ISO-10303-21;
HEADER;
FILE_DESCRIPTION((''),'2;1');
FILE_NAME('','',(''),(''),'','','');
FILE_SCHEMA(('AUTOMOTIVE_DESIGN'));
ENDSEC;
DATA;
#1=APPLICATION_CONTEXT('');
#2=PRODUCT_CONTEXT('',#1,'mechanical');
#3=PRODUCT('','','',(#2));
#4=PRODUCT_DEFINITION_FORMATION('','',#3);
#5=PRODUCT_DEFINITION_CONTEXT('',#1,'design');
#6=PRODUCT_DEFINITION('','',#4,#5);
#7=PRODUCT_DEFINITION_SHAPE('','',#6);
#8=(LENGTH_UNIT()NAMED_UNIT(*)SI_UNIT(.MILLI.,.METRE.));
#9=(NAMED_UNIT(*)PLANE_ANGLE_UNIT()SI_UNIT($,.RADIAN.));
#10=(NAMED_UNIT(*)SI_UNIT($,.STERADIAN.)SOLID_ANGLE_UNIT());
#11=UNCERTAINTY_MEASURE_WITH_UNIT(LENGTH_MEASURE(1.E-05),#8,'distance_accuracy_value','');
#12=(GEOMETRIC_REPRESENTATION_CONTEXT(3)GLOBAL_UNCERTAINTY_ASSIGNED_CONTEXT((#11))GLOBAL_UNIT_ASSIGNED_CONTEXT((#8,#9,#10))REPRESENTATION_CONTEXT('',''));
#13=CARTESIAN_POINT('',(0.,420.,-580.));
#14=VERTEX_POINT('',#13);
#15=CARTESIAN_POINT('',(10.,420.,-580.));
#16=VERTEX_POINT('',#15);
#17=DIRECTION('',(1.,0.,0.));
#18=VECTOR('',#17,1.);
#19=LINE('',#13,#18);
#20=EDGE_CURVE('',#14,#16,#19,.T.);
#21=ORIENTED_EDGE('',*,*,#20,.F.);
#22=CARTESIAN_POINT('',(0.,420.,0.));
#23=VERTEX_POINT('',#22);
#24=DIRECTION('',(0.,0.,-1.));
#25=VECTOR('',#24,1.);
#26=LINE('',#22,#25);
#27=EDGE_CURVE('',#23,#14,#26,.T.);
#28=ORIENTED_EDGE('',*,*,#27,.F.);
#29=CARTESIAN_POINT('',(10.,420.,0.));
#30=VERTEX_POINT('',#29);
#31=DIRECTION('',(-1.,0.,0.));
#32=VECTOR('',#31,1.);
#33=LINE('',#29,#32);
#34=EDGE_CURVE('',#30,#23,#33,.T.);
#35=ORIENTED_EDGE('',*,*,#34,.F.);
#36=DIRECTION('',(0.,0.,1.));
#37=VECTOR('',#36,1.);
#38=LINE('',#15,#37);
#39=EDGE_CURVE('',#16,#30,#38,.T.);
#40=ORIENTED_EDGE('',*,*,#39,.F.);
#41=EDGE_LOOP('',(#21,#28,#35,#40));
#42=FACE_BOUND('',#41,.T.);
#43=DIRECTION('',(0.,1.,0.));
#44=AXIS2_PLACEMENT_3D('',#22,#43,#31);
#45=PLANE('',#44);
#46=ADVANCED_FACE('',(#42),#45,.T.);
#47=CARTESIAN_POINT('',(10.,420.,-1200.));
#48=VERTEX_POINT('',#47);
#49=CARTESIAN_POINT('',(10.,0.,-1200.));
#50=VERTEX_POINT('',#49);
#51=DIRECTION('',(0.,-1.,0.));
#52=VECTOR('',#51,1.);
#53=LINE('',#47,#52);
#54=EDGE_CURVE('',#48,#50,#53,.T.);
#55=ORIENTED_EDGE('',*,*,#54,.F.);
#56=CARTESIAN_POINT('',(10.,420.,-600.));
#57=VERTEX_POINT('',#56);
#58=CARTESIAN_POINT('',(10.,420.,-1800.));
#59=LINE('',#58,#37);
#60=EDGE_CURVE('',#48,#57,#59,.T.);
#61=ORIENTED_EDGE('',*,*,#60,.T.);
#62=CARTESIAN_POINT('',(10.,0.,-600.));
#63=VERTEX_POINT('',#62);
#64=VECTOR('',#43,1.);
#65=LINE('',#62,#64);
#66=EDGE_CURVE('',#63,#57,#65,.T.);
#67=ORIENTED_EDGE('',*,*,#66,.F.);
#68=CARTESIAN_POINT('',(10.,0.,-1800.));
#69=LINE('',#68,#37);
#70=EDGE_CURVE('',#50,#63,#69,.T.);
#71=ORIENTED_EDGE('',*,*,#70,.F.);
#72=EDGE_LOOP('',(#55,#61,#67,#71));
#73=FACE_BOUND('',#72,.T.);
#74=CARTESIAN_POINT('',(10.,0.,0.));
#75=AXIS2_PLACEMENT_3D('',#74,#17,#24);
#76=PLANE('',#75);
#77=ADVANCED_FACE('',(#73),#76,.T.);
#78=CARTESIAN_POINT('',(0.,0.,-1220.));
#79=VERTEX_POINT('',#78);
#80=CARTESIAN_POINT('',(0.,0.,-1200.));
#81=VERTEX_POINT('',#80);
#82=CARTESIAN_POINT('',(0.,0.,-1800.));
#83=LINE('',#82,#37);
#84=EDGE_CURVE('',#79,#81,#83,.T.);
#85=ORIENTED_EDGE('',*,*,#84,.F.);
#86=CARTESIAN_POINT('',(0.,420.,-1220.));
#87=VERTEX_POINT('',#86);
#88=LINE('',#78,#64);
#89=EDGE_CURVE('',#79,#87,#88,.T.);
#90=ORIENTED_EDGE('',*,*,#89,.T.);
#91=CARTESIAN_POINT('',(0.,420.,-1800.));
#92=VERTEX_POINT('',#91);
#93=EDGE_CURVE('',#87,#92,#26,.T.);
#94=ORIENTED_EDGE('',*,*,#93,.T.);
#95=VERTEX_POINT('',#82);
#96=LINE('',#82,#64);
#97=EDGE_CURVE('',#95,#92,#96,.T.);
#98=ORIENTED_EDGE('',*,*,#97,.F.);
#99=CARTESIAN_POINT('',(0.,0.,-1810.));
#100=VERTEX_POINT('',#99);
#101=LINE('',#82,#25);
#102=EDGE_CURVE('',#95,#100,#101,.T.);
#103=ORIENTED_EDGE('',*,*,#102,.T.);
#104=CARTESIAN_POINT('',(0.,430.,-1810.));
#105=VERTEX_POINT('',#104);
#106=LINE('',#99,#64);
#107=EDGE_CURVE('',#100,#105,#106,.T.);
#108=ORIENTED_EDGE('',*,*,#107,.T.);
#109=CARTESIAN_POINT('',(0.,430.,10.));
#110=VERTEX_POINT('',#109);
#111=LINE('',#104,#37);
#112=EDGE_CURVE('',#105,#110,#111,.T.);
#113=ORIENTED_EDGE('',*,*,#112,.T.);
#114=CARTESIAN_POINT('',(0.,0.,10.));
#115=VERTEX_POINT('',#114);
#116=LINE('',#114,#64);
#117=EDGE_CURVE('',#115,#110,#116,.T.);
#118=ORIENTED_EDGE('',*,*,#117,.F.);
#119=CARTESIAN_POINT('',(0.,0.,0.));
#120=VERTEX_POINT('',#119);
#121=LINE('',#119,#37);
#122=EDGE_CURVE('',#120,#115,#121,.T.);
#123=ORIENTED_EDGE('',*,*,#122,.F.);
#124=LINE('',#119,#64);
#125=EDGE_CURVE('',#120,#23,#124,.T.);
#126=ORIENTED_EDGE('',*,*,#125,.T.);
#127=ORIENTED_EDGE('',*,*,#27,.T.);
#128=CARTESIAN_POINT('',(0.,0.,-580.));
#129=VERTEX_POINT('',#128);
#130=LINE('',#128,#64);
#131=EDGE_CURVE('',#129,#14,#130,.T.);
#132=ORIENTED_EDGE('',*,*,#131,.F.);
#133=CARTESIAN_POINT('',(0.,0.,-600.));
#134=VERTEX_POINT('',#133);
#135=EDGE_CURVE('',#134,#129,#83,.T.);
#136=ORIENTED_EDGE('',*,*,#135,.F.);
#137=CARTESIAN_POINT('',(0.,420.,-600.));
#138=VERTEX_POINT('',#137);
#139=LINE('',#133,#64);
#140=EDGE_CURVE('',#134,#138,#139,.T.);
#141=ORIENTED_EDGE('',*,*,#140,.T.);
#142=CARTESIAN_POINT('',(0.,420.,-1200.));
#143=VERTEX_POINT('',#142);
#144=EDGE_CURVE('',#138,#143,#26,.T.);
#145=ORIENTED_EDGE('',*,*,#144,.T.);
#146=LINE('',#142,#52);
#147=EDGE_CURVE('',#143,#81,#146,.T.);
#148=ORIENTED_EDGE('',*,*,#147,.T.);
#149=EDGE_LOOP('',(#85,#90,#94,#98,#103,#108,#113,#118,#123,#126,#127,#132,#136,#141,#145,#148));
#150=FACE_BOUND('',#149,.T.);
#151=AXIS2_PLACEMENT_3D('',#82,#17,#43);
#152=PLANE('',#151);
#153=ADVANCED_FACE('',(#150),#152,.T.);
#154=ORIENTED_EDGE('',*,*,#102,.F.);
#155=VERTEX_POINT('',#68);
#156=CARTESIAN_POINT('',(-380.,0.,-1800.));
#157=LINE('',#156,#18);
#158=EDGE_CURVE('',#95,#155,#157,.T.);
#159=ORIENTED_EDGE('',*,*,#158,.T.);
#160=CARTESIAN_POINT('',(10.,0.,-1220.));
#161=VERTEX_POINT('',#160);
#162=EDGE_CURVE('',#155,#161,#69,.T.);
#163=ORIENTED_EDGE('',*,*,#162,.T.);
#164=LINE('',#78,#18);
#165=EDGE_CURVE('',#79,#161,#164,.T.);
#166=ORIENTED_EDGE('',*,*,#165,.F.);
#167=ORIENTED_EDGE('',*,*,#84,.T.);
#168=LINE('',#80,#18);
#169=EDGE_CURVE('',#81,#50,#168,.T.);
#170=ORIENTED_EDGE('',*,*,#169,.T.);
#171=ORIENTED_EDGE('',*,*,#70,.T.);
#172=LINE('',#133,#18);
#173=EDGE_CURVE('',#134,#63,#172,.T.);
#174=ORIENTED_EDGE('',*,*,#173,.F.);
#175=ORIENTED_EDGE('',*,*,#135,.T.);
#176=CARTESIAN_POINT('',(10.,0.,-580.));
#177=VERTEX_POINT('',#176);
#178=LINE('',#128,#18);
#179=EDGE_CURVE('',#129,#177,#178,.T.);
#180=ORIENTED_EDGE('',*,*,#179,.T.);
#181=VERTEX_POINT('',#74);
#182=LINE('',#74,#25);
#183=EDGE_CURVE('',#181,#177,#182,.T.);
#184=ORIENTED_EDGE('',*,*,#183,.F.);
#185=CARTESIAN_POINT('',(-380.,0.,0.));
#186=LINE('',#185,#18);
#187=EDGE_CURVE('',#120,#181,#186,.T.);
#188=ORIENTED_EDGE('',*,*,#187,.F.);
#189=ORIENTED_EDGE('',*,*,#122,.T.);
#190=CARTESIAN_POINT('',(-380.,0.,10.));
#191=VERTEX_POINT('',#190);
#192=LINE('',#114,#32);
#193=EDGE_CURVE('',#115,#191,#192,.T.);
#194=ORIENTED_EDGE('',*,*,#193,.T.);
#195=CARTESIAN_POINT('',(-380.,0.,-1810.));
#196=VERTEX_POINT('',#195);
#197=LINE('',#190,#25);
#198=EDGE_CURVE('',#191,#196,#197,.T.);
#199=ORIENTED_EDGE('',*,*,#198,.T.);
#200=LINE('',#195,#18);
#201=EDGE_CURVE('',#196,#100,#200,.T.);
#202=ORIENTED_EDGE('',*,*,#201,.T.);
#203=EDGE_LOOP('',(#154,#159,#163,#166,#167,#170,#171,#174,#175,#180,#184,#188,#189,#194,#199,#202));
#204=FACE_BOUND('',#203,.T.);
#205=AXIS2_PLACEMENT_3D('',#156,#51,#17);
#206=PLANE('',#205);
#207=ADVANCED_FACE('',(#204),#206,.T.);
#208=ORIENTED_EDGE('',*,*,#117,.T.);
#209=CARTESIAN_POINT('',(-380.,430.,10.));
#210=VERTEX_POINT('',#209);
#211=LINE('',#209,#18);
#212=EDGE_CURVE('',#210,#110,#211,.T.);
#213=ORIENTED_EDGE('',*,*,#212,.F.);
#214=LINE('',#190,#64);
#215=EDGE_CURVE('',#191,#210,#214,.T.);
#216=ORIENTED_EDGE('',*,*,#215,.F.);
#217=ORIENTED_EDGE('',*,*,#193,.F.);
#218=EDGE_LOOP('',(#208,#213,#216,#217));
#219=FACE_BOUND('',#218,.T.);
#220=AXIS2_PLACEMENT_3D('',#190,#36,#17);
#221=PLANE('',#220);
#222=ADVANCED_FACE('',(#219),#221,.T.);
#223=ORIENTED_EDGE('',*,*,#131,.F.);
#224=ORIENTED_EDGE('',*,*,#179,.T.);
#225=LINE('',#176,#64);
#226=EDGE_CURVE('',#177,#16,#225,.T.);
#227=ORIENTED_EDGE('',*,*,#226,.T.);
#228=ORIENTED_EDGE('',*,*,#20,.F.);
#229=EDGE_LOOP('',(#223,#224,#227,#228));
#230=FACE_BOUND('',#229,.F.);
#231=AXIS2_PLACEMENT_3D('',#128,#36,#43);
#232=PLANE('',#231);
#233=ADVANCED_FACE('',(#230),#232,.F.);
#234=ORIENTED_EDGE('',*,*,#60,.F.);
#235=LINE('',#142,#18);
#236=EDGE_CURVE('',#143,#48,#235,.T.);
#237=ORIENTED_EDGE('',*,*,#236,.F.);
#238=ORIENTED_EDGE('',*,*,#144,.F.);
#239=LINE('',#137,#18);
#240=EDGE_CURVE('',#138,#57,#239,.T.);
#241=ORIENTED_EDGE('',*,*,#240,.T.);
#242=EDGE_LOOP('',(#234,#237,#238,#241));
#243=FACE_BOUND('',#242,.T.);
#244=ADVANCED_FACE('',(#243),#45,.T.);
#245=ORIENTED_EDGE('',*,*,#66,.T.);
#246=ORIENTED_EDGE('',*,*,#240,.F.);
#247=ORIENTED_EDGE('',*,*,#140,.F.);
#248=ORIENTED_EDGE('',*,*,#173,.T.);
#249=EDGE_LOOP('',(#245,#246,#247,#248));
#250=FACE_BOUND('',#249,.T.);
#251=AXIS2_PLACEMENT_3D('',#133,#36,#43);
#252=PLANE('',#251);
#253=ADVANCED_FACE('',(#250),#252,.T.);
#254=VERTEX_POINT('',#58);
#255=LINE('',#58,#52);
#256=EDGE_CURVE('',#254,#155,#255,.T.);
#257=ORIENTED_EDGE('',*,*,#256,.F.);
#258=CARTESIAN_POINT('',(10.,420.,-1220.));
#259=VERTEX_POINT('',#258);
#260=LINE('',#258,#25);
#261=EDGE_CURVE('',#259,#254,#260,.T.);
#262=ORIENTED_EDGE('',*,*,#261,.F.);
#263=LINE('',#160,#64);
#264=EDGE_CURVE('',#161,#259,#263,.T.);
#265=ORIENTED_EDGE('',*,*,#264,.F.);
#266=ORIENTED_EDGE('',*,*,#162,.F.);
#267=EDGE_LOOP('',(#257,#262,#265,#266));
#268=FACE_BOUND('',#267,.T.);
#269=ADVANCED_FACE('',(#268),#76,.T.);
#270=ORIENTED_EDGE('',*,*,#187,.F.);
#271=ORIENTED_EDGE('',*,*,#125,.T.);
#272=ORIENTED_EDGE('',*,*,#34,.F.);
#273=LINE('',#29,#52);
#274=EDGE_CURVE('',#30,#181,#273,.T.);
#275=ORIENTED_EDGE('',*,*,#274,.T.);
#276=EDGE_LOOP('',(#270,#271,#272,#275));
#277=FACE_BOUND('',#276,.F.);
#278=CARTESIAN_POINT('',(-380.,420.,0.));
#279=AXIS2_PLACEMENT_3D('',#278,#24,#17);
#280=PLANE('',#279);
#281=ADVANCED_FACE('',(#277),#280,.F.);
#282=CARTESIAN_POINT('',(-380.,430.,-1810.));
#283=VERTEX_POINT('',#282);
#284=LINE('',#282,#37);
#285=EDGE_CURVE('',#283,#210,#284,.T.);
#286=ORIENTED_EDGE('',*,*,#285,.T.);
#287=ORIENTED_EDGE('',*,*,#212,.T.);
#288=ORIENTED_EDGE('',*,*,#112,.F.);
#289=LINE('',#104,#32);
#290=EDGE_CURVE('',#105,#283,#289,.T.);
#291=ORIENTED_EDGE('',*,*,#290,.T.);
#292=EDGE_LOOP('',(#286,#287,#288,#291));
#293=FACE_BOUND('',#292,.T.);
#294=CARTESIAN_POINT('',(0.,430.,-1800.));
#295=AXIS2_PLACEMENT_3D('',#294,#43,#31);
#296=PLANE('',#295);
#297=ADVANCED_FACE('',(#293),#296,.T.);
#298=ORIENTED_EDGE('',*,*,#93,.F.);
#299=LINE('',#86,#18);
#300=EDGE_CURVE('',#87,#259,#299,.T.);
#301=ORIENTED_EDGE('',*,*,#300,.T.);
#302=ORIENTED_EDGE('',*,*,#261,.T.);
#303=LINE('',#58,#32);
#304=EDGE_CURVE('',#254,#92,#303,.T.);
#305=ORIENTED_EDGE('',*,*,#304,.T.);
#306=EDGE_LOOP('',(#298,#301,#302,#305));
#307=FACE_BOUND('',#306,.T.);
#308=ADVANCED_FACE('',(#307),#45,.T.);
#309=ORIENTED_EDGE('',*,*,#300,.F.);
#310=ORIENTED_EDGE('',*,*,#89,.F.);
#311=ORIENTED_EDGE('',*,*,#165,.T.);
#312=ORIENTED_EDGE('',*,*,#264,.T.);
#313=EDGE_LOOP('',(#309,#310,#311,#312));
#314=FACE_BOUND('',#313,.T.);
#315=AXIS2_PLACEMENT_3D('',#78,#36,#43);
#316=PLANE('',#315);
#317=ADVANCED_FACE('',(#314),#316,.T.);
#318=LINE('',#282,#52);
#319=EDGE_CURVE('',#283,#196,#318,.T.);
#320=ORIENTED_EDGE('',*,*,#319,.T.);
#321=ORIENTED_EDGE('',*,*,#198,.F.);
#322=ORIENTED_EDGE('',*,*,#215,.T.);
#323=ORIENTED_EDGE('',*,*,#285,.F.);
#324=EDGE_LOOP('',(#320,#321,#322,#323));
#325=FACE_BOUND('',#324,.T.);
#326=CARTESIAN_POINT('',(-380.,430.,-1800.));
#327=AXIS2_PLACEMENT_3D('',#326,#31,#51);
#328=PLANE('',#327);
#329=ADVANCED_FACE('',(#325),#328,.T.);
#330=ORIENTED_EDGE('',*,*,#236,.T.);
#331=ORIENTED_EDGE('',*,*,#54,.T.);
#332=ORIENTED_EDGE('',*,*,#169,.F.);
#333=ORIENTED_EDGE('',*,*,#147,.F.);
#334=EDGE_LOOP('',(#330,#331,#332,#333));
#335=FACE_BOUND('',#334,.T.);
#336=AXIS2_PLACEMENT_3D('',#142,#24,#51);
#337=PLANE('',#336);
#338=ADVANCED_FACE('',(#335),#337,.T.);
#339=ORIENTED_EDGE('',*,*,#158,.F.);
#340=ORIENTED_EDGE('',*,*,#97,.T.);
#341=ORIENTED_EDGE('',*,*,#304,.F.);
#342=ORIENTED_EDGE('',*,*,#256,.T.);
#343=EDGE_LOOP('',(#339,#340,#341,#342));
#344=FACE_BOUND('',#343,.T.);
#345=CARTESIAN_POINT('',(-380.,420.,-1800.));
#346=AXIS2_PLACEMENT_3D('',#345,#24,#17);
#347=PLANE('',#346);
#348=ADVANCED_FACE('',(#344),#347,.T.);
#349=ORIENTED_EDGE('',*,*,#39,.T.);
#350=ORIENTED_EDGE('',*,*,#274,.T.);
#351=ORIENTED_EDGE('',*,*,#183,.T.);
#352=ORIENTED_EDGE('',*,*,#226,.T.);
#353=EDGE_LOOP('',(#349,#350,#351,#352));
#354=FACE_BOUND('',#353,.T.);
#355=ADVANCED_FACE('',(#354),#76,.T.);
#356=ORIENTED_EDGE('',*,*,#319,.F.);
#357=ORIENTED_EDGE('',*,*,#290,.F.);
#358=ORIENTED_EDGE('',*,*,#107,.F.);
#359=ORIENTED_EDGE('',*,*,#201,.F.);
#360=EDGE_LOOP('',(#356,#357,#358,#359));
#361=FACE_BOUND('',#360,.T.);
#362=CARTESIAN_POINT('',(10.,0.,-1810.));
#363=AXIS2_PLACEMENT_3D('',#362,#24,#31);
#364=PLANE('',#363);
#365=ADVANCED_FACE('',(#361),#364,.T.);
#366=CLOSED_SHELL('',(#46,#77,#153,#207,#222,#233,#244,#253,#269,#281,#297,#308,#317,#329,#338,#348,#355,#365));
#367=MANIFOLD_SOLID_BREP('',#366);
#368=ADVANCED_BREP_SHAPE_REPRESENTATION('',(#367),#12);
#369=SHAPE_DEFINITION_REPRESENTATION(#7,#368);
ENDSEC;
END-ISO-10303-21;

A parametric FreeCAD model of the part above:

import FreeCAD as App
import Part
import Sketcher
from FreeCAD import Vector
Q = App.Units.Quantity

doc = App.newDocument("Part")
body = doc.addObject("PartDesign::Body", "Body")

sketch1 = doc.addObject("Sketcher::SketchObject", "Sketch")
body.addObject(sketch1)
sketch1.AttachmentSupport = (doc.XZ_Plane, [""])
sketch1.MapMode = "FlatFace"
sketch1.addGeometry([
    Part.LineSegment(Vector(-380, 0, 0), Vector(0, 0, 0)),
    Part.LineSegment(Vector(0, 0, 0), Vector(0, -1800, 0)),
    Part.LineSegment(Vector(0, -1800, 0), Vector(-380, -1800, 0)),
    Part.LineSegment(Vector(-380, -1800, 0), Vector(-380, 0, 0)),
], False)
sketch1.addConstraint([
    Sketcher.Constraint("Coincident", 0, 2, 1, 1),
    Sketcher.Constraint("Coincident", 1, 2, 2, 1),
    Sketcher.Constraint("Coincident", 2, 2, 3, 1),
    Sketcher.Constraint("Coincident", 3, 2, 0, 1),
    Sketcher.Constraint("Horizontal", 0),
    Sketcher.Constraint("Vertical", 1),
    Sketcher.Constraint("Horizontal", 2),
    Sketcher.Constraint("Vertical", 3),
    Sketcher.Constraint("Coincident", 0, 2, -1, 1),
    Sketcher.Constraint("DistanceX", 0, 1, 0, 2, Q("380 mm")),
    Sketcher.Constraint("DistanceY", 1, 2, 1, 1, Q("1800 mm")),
])
pad1 = doc.addObject("PartDesign::Pad", "Pad")
body.addObject(pad1)
pad1.Profile = sketch1
pad1.Length = 420
pad1.Reversed = True

sketch2 = doc.addObject("Sketcher::SketchObject", "Sketch001")
body.addObject(sketch2)
sketch2.AttachmentSupport = (doc.YZ_Plane, [""])
sketch2.MapMode = "FlatFace"
sketch2.addGeometry([
    Part.LineSegment(Vector(420, 0, 0), Vector(0, 0, 0)),
    Part.LineSegment(Vector(0, 0, 0), Vector(0, -580, 0)),
    Part.LineSegment(Vector(0, -580, 0), Vector(420, -580, 0)),
    Part.LineSegment(Vector(420, -580, 0), Vector(420, 0, 0)),
    Part.LineSegment(Vector(420, -600, 0), Vector(0, -600, 0)),
    Part.LineSegment(Vector(0, -600, 0), Vector(0, -1200, 0)),
    Part.LineSegment(Vector(0, -1200, 0), Vector(420, -1200, 0)),
    Part.LineSegment(Vector(420, -1200, 0), Vector(420, -600, 0)),
    Part.LineSegment(Vector(420, -1220, 0), Vector(0, -1220, 0)),
    Part.LineSegment(Vector(0, -1220, 0), Vector(0, -1800, 0)),
    Part.LineSegment(Vector(0, -1800, 0), Vector(420, -1800, 0)),
    Part.LineSegment(Vector(420, -1800, 0), Vector(420, -1220, 0)),
], False)
sketch2.addConstraint([
    Sketcher.Constraint("Coincident", 0, 2, 1, 1),
    Sketcher.Constraint("Coincident", 1, 2, 2, 1),
    Sketcher.Constraint("Coincident", 2, 2, 3, 1),
    Sketcher.Constraint("Coincident", 3, 2, 0, 1),
    Sketcher.Constraint("Coincident", 4, 2, 5, 1),
    Sketcher.Constraint("Coincident", 5, 2, 6, 1),
    Sketcher.Constraint("Coincident", 6, 2, 7, 1),
    Sketcher.Constraint("Coincident", 7, 2, 4, 1),
    Sketcher.Constraint("Coincident", 8, 2, 9, 1),
    Sketcher.Constraint("Coincident", 9, 2, 10, 1),
    Sketcher.Constraint("Coincident", 10, 2, 11, 1),
    Sketcher.Constraint("Coincident", 11, 2, 8, 1),
    Sketcher.Constraint("Horizontal", 0),
    Sketcher.Constraint("Vertical", 1),
    Sketcher.Constraint("Horizontal", 2),
    Sketcher.Constraint("Vertical", 3),
    Sketcher.Constraint("Horizontal", 4),
    Sketcher.Constraint("Vertical", 5),
    Sketcher.Constraint("Horizontal", 6),
    Sketcher.Constraint("Vertical", 7),
    Sketcher.Constraint("Horizontal", 8),
    Sketcher.Constraint("Vertical", 9),
    Sketcher.Constraint("Horizontal", 10),
    Sketcher.Constraint("Vertical", 11),
    Sketcher.Constraint("Coincident", 0, 2, -1, 1),
    Sketcher.Constraint("PointOnObject", 4, 2, -2),
    Sketcher.Constraint("PointOnObject", 8, 2, -2),
    Sketcher.Constraint("Vertical", 3, 2, 6, 2),
    Sketcher.Constraint("Vertical", 7, 2, 10, 2),
    Sketcher.Constraint("Equal", 3, 9),
    Sketcher.Constraint("DistanceY", 1, 2, 1, 1, Q("580 mm")),
    Sketcher.Constraint("DistanceY", 5, 2, 5, 1, Q("600 mm")),
    Sketcher.Constraint("DistanceY", 4, 2, -1, 1, Q("600 mm")),
    Sketcher.Constraint("DistanceY", 9, 2, 5, 2, Q("600 mm")),
    Sketcher.Constraint("DistanceX", 0, 2, 0, 1, Q("420 mm")),
])
pad2 = doc.addObject("PartDesign::Pad", "Pad001")
body.addObject(pad2)
pad2.Profile = sketch2
pad2.Length = 10

sketch3 = doc.addObject("Sketcher::SketchObject", "Sketch002")
body.addObject(sketch3)
sketch3.AttachmentSupport = (doc.XZ_Plane, [""])
sketch3.MapMode = "FlatFace"
sketch3.AttachmentOffset = App.Placement(Vector(0, 0, -420), App.Rotation())
sketch3.addGeometry([
    Part.LineSegment(Vector(0, -1800, 0), Vector(-380, -1800, 0)),
    Part.LineSegment(Vector(-380, -1800, 0), Vector(-380, 0, 0)),
    Part.LineSegment(Vector(-380, 0, 0), Vector(0, 0, 0)),
    Part.LineSegment(Vector(0, 0, 0), Vector(0, -1800, 0)),
], False)
sketch3.addConstraint([
    Sketcher.Constraint("Coincident", 0, 2, 1, 1),
    Sketcher.Constraint("Coincident", 1, 2, 2, 1),
    Sketcher.Constraint("Coincident", 2, 2, 3, 1),
    Sketcher.Constraint("Coincident", 3, 2, 0, 1),
    Sketcher.Constraint("Horizontal", 0),
    Sketcher.Constraint("Vertical", 1),
    Sketcher.Constraint("Horizontal", 2),
    Sketcher.Constraint("Vertical", 3),
    Sketcher.Constraint("Coincident", 2, 2, -1, 1),
    Sketcher.Constraint("DistanceX", 0, 2, 0, 1, Q("380 mm")),
    Sketcher.Constraint("DistanceY", 1, 1, 1, 2, Q("1800 mm")),
])
pad3 = doc.addObject("PartDesign::Pad", "Pad002")
body.addObject(pad3)
pad3.Profile = sketch3
pad3.Length = 10
pad3.Reversed = True

sketch4 = doc.addObject("Sketcher::SketchObject", "Sketch003")
body.addObject(sketch4)
sketch4.AttachmentSupport = (doc.XY_Plane, [""])
sketch4.MapMode = "FlatFace"
sketch4.addGeometry([
    Part.LineSegment(Vector(-380, 430, 0), Vector(-380, 0, 0)),
    Part.LineSegment(Vector(-380, 0, 0), Vector(0, 0, 0)),
    Part.LineSegment(Vector(0, 0, 0), Vector(0, 430, 0)),
    Part.LineSegment(Vector(0, 430, 0), Vector(-380, 430, 0)),
], False)
sketch4.addConstraint([
    Sketcher.Constraint("Coincident", 0, 2, 1, 1),
    Sketcher.Constraint("Coincident", 1, 2, 2, 1),
    Sketcher.Constraint("Coincident", 2, 2, 3, 1),
    Sketcher.Constraint("Coincident", 3, 2, 0, 1),
    Sketcher.Constraint("Vertical", 0),
    Sketcher.Constraint("Horizontal", 1),
    Sketcher.Constraint("Vertical", 2),
    Sketcher.Constraint("Horizontal", 3),
    Sketcher.Constraint("Coincident", 1, 2, -1, 1),
    Sketcher.Constraint("DistanceX", 1, 1, 1, 2, Q("380 mm")),
    Sketcher.Constraint("DistanceY", 0, 2, 0, 1, Q("430 mm")),
])
pad4 = doc.addObject("PartDesign::Pad", "Pad003")
body.addObject(pad4)
pad4.Profile = sketch4
pad4.Length = 10

sketch5 = doc.addObject("Sketcher::SketchObject", "Sketch004")
body.addObject(sketch5)
sketch5.AttachmentSupport = (doc.XY_Plane, [""])
sketch5.MapMode = "FlatFace"
sketch5.AttachmentOffset = App.Placement(Vector(0, 0, -1800), App.Rotation())
sketch5.addGeometry([
    Part.LineSegment(Vector(0, 430, 0), Vector(0, 0, 0)),
    Part.LineSegment(Vector(0, 0, 0), Vector(-380, 0, 0)),
    Part.LineSegment(Vector(-380, 0, 0), Vector(-380, 430, 0)),
    Part.LineSegment(Vector(-380, 430, 0), Vector(0, 430, 0)),
], False)
sketch5.addConstraint([
    Sketcher.Constraint("Coincident", 0, 2, 1, 1),
    Sketcher.Constraint("Coincident", 1, 2, 2, 1),
    Sketcher.Constraint("Coincident", 2, 2, 3, 1),
    Sketcher.Constraint("Coincident", 3, 2, 0, 1),
    Sketcher.Constraint("Vertical", 0),
    Sketcher.Constraint("Horizontal", 1),
    Sketcher.Constraint("Vertical", 2),
    Sketcher.Constraint("Horizontal", 3),
    Sketcher.Constraint("Coincident", 0, 2, -1, 1),
    Sketcher.Constraint("DistanceX", 1, 2, 1, 1, Q("380 mm")),
    Sketcher.Constraint("DistanceY", 0, 2, 0, 1, Q("430 mm")),
])
pad5 = doc.addObject("PartDesign::Pad", "Pad004")
body.addObject(pad5)
pad5.Profile = sketch5
pad5.Length = 10
pad5.Reversed = True

doc.recompute()
